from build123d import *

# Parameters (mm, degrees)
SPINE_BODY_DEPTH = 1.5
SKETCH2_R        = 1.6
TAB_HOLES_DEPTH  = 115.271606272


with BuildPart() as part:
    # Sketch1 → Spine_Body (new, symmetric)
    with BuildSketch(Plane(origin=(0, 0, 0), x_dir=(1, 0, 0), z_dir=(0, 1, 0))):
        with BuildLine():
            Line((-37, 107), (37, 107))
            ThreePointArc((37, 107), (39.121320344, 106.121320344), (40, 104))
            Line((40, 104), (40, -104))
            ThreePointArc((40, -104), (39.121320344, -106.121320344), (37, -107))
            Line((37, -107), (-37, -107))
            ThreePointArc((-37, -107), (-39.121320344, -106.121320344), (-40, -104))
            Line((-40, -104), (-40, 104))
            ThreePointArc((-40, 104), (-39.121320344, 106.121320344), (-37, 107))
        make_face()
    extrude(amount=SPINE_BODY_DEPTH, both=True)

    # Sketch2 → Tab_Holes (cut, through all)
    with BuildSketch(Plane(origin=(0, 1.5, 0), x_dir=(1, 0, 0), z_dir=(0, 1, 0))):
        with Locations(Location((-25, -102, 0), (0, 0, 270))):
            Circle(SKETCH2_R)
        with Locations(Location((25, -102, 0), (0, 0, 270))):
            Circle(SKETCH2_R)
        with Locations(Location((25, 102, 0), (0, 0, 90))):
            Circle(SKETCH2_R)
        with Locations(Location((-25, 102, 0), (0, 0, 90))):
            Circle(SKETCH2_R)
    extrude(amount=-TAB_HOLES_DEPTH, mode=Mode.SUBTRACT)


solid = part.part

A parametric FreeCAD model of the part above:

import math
import FreeCAD as App
import Part
import Sketcher
Q = App.Units.Quantity

doc = App.newDocument("Part")
body = doc.addObject("PartDesign::Body", "Body")

# Sketch on XZ plane
sketch1 = body.newObject("Sketcher::SketchObject", "Sketch")
sketch1.AttachmentSupport = (doc.getObject("XZ_Plane"), [""])
sketch1.MapMode = "FlatFace"
sketch1.addGeometry([
    Part.LineSegment(App.Vector(37, -107, 0), App.Vector(-37, -107, 0)),  # 0
    Part.ArcOfCircle(Part.Circle(App.Vector(-37, -104, 0), App.Vector(0, 0, 1), 3), math.radians(180), math.radians(270)),  # 1
    Part.LineSegment(App.Vector(-40, -104, 0), App.Vector(-40, 104, 0)),  # 2
    Part.ArcOfCircle(Part.Circle(App.Vector(-37, 104, 0), App.Vector(0, 0, 1), 3), math.radians(90), math.radians(180)),  # 3
    Part.LineSegment(App.Vector(-37, 107, 0), App.Vector(37, 107, 0)),  # 4
    Part.ArcOfCircle(Part.Circle(App.Vector(37, 104, 0), App.Vector(0, 0, 1), 3), math.radians(0), math.radians(90)),  # 5
    Part.LineSegment(App.Vector(40, 104, 0), App.Vector(40, -104, 0)),  # 6
    Part.ArcOfCircle(Part.Circle(App.Vector(37, -104, 0), App.Vector(0, 0, 1), 3), math.radians(-90), math.radians(0)),  # 7
], False)
sketch1.addConstraint([
    Sketcher.Constraint("Tangent", 0, 2, 1, 2),
    Sketcher.Constraint("Tangent", 1, 1, 2, 1),
    Sketcher.Constraint("Tangent", 2, 2, 3, 2),
    Sketcher.Constraint("Tangent", 3, 1, 4, 1),
    Sketcher.Constraint("Tangent", 4, 2, 5, 2),
    Sketcher.Constraint("Tangent", 5, 1, 6, 1),
    Sketcher.Constraint("Tangent", 6, 2, 7, 2),
    Sketcher.Constraint("Tangent", 7, 1, 0, 1),
    Sketcher.Constraint("Horizontal", 0),
    Sketcher.Constraint("Vertical", 2),
    Sketcher.Constraint("Horizontal", 4),
    Sketcher.Constraint("Vertical", 6),
    Sketcher.Constraint("Equal", 1, 3),
    Sketcher.Constraint("Equal", 3, 5),
    Sketcher.Constraint("Equal", 5, 7),
    Sketcher.Constraint("Symmetric", 1, 3, 5, 3, -1, 1),
    Sketcher.Constraint("Radius", 1, Q("3 mm")),
    Sketcher.Constraint("DistanceX", 0, 2, 0, 1, Q("74 mm")),
    Sketcher.Constraint("DistanceY", 2, 1, 2, 2, Q("208 mm")),
])
pad1 = body.newObject("PartDesign::Pad", "Pad")
pad1.Profile = sketch1
pad1.Length = 3
pad1.Midplane = True

# Sketch on XZ plane
sketch2 = body.newObject("Sketcher::SketchObject", "Sketch001")
sketch2.AttachmentSupport = (doc.getObject("XZ_Plane"), [""])
sketch2.MapMode = "FlatFace"
sketch2.AttachmentOffset = App.Placement(App.Vector(0, 0, -1.5), App.Rotation())
sketch2.addGeometry([
    Part.Circle(App.Vector(-25, 102, 0), App.Vector(0, 0, 1), 1.6),
    Part.Circle(App.Vector(25, 102, 0), App.Vector(0, 0, 1), 1.6),
    Part.Circle(App.Vector(25, -102, 0), App.Vector(0, 0, 1), 1.6),
    Part.Circle(App.Vector(-25, -102, 0), App.Vector(0, 0, 1), 1.6),
], False)
sketch2.addConstraint([
    Sketcher.Constraint("Equal", 0, 1),
    Sketcher.Constraint("Equal", 1, 2),
    Sketcher.Constraint("Equal", 2, 3),
    Sketcher.Constraint("Symmetric", 0, 3, 2, 3, -1, 1),
    Sketcher.Constraint("Symmetric", 1, 3, 3, 3, -1, 1),
    Sketcher.Constraint("Symmetric", 0, 3, 1, 3, -2),
    Sketcher.Constraint("Diameter", 0, Q("3.2 mm")),
    Sketcher.Constraint("DistanceX", 0, 3, -1, 1, Q("25 mm")),
    Sketcher.Constraint("DistanceY", -1, 1, 0, 3, Q("102 mm")),
])
pocket1 = body.newObject("PartDesign::Pocket", "Pocket")
pocket1.Profile = sketch2
pocket1.Type = "ThroughAll"
pocket1.Reversed = True

doc.recompute()
